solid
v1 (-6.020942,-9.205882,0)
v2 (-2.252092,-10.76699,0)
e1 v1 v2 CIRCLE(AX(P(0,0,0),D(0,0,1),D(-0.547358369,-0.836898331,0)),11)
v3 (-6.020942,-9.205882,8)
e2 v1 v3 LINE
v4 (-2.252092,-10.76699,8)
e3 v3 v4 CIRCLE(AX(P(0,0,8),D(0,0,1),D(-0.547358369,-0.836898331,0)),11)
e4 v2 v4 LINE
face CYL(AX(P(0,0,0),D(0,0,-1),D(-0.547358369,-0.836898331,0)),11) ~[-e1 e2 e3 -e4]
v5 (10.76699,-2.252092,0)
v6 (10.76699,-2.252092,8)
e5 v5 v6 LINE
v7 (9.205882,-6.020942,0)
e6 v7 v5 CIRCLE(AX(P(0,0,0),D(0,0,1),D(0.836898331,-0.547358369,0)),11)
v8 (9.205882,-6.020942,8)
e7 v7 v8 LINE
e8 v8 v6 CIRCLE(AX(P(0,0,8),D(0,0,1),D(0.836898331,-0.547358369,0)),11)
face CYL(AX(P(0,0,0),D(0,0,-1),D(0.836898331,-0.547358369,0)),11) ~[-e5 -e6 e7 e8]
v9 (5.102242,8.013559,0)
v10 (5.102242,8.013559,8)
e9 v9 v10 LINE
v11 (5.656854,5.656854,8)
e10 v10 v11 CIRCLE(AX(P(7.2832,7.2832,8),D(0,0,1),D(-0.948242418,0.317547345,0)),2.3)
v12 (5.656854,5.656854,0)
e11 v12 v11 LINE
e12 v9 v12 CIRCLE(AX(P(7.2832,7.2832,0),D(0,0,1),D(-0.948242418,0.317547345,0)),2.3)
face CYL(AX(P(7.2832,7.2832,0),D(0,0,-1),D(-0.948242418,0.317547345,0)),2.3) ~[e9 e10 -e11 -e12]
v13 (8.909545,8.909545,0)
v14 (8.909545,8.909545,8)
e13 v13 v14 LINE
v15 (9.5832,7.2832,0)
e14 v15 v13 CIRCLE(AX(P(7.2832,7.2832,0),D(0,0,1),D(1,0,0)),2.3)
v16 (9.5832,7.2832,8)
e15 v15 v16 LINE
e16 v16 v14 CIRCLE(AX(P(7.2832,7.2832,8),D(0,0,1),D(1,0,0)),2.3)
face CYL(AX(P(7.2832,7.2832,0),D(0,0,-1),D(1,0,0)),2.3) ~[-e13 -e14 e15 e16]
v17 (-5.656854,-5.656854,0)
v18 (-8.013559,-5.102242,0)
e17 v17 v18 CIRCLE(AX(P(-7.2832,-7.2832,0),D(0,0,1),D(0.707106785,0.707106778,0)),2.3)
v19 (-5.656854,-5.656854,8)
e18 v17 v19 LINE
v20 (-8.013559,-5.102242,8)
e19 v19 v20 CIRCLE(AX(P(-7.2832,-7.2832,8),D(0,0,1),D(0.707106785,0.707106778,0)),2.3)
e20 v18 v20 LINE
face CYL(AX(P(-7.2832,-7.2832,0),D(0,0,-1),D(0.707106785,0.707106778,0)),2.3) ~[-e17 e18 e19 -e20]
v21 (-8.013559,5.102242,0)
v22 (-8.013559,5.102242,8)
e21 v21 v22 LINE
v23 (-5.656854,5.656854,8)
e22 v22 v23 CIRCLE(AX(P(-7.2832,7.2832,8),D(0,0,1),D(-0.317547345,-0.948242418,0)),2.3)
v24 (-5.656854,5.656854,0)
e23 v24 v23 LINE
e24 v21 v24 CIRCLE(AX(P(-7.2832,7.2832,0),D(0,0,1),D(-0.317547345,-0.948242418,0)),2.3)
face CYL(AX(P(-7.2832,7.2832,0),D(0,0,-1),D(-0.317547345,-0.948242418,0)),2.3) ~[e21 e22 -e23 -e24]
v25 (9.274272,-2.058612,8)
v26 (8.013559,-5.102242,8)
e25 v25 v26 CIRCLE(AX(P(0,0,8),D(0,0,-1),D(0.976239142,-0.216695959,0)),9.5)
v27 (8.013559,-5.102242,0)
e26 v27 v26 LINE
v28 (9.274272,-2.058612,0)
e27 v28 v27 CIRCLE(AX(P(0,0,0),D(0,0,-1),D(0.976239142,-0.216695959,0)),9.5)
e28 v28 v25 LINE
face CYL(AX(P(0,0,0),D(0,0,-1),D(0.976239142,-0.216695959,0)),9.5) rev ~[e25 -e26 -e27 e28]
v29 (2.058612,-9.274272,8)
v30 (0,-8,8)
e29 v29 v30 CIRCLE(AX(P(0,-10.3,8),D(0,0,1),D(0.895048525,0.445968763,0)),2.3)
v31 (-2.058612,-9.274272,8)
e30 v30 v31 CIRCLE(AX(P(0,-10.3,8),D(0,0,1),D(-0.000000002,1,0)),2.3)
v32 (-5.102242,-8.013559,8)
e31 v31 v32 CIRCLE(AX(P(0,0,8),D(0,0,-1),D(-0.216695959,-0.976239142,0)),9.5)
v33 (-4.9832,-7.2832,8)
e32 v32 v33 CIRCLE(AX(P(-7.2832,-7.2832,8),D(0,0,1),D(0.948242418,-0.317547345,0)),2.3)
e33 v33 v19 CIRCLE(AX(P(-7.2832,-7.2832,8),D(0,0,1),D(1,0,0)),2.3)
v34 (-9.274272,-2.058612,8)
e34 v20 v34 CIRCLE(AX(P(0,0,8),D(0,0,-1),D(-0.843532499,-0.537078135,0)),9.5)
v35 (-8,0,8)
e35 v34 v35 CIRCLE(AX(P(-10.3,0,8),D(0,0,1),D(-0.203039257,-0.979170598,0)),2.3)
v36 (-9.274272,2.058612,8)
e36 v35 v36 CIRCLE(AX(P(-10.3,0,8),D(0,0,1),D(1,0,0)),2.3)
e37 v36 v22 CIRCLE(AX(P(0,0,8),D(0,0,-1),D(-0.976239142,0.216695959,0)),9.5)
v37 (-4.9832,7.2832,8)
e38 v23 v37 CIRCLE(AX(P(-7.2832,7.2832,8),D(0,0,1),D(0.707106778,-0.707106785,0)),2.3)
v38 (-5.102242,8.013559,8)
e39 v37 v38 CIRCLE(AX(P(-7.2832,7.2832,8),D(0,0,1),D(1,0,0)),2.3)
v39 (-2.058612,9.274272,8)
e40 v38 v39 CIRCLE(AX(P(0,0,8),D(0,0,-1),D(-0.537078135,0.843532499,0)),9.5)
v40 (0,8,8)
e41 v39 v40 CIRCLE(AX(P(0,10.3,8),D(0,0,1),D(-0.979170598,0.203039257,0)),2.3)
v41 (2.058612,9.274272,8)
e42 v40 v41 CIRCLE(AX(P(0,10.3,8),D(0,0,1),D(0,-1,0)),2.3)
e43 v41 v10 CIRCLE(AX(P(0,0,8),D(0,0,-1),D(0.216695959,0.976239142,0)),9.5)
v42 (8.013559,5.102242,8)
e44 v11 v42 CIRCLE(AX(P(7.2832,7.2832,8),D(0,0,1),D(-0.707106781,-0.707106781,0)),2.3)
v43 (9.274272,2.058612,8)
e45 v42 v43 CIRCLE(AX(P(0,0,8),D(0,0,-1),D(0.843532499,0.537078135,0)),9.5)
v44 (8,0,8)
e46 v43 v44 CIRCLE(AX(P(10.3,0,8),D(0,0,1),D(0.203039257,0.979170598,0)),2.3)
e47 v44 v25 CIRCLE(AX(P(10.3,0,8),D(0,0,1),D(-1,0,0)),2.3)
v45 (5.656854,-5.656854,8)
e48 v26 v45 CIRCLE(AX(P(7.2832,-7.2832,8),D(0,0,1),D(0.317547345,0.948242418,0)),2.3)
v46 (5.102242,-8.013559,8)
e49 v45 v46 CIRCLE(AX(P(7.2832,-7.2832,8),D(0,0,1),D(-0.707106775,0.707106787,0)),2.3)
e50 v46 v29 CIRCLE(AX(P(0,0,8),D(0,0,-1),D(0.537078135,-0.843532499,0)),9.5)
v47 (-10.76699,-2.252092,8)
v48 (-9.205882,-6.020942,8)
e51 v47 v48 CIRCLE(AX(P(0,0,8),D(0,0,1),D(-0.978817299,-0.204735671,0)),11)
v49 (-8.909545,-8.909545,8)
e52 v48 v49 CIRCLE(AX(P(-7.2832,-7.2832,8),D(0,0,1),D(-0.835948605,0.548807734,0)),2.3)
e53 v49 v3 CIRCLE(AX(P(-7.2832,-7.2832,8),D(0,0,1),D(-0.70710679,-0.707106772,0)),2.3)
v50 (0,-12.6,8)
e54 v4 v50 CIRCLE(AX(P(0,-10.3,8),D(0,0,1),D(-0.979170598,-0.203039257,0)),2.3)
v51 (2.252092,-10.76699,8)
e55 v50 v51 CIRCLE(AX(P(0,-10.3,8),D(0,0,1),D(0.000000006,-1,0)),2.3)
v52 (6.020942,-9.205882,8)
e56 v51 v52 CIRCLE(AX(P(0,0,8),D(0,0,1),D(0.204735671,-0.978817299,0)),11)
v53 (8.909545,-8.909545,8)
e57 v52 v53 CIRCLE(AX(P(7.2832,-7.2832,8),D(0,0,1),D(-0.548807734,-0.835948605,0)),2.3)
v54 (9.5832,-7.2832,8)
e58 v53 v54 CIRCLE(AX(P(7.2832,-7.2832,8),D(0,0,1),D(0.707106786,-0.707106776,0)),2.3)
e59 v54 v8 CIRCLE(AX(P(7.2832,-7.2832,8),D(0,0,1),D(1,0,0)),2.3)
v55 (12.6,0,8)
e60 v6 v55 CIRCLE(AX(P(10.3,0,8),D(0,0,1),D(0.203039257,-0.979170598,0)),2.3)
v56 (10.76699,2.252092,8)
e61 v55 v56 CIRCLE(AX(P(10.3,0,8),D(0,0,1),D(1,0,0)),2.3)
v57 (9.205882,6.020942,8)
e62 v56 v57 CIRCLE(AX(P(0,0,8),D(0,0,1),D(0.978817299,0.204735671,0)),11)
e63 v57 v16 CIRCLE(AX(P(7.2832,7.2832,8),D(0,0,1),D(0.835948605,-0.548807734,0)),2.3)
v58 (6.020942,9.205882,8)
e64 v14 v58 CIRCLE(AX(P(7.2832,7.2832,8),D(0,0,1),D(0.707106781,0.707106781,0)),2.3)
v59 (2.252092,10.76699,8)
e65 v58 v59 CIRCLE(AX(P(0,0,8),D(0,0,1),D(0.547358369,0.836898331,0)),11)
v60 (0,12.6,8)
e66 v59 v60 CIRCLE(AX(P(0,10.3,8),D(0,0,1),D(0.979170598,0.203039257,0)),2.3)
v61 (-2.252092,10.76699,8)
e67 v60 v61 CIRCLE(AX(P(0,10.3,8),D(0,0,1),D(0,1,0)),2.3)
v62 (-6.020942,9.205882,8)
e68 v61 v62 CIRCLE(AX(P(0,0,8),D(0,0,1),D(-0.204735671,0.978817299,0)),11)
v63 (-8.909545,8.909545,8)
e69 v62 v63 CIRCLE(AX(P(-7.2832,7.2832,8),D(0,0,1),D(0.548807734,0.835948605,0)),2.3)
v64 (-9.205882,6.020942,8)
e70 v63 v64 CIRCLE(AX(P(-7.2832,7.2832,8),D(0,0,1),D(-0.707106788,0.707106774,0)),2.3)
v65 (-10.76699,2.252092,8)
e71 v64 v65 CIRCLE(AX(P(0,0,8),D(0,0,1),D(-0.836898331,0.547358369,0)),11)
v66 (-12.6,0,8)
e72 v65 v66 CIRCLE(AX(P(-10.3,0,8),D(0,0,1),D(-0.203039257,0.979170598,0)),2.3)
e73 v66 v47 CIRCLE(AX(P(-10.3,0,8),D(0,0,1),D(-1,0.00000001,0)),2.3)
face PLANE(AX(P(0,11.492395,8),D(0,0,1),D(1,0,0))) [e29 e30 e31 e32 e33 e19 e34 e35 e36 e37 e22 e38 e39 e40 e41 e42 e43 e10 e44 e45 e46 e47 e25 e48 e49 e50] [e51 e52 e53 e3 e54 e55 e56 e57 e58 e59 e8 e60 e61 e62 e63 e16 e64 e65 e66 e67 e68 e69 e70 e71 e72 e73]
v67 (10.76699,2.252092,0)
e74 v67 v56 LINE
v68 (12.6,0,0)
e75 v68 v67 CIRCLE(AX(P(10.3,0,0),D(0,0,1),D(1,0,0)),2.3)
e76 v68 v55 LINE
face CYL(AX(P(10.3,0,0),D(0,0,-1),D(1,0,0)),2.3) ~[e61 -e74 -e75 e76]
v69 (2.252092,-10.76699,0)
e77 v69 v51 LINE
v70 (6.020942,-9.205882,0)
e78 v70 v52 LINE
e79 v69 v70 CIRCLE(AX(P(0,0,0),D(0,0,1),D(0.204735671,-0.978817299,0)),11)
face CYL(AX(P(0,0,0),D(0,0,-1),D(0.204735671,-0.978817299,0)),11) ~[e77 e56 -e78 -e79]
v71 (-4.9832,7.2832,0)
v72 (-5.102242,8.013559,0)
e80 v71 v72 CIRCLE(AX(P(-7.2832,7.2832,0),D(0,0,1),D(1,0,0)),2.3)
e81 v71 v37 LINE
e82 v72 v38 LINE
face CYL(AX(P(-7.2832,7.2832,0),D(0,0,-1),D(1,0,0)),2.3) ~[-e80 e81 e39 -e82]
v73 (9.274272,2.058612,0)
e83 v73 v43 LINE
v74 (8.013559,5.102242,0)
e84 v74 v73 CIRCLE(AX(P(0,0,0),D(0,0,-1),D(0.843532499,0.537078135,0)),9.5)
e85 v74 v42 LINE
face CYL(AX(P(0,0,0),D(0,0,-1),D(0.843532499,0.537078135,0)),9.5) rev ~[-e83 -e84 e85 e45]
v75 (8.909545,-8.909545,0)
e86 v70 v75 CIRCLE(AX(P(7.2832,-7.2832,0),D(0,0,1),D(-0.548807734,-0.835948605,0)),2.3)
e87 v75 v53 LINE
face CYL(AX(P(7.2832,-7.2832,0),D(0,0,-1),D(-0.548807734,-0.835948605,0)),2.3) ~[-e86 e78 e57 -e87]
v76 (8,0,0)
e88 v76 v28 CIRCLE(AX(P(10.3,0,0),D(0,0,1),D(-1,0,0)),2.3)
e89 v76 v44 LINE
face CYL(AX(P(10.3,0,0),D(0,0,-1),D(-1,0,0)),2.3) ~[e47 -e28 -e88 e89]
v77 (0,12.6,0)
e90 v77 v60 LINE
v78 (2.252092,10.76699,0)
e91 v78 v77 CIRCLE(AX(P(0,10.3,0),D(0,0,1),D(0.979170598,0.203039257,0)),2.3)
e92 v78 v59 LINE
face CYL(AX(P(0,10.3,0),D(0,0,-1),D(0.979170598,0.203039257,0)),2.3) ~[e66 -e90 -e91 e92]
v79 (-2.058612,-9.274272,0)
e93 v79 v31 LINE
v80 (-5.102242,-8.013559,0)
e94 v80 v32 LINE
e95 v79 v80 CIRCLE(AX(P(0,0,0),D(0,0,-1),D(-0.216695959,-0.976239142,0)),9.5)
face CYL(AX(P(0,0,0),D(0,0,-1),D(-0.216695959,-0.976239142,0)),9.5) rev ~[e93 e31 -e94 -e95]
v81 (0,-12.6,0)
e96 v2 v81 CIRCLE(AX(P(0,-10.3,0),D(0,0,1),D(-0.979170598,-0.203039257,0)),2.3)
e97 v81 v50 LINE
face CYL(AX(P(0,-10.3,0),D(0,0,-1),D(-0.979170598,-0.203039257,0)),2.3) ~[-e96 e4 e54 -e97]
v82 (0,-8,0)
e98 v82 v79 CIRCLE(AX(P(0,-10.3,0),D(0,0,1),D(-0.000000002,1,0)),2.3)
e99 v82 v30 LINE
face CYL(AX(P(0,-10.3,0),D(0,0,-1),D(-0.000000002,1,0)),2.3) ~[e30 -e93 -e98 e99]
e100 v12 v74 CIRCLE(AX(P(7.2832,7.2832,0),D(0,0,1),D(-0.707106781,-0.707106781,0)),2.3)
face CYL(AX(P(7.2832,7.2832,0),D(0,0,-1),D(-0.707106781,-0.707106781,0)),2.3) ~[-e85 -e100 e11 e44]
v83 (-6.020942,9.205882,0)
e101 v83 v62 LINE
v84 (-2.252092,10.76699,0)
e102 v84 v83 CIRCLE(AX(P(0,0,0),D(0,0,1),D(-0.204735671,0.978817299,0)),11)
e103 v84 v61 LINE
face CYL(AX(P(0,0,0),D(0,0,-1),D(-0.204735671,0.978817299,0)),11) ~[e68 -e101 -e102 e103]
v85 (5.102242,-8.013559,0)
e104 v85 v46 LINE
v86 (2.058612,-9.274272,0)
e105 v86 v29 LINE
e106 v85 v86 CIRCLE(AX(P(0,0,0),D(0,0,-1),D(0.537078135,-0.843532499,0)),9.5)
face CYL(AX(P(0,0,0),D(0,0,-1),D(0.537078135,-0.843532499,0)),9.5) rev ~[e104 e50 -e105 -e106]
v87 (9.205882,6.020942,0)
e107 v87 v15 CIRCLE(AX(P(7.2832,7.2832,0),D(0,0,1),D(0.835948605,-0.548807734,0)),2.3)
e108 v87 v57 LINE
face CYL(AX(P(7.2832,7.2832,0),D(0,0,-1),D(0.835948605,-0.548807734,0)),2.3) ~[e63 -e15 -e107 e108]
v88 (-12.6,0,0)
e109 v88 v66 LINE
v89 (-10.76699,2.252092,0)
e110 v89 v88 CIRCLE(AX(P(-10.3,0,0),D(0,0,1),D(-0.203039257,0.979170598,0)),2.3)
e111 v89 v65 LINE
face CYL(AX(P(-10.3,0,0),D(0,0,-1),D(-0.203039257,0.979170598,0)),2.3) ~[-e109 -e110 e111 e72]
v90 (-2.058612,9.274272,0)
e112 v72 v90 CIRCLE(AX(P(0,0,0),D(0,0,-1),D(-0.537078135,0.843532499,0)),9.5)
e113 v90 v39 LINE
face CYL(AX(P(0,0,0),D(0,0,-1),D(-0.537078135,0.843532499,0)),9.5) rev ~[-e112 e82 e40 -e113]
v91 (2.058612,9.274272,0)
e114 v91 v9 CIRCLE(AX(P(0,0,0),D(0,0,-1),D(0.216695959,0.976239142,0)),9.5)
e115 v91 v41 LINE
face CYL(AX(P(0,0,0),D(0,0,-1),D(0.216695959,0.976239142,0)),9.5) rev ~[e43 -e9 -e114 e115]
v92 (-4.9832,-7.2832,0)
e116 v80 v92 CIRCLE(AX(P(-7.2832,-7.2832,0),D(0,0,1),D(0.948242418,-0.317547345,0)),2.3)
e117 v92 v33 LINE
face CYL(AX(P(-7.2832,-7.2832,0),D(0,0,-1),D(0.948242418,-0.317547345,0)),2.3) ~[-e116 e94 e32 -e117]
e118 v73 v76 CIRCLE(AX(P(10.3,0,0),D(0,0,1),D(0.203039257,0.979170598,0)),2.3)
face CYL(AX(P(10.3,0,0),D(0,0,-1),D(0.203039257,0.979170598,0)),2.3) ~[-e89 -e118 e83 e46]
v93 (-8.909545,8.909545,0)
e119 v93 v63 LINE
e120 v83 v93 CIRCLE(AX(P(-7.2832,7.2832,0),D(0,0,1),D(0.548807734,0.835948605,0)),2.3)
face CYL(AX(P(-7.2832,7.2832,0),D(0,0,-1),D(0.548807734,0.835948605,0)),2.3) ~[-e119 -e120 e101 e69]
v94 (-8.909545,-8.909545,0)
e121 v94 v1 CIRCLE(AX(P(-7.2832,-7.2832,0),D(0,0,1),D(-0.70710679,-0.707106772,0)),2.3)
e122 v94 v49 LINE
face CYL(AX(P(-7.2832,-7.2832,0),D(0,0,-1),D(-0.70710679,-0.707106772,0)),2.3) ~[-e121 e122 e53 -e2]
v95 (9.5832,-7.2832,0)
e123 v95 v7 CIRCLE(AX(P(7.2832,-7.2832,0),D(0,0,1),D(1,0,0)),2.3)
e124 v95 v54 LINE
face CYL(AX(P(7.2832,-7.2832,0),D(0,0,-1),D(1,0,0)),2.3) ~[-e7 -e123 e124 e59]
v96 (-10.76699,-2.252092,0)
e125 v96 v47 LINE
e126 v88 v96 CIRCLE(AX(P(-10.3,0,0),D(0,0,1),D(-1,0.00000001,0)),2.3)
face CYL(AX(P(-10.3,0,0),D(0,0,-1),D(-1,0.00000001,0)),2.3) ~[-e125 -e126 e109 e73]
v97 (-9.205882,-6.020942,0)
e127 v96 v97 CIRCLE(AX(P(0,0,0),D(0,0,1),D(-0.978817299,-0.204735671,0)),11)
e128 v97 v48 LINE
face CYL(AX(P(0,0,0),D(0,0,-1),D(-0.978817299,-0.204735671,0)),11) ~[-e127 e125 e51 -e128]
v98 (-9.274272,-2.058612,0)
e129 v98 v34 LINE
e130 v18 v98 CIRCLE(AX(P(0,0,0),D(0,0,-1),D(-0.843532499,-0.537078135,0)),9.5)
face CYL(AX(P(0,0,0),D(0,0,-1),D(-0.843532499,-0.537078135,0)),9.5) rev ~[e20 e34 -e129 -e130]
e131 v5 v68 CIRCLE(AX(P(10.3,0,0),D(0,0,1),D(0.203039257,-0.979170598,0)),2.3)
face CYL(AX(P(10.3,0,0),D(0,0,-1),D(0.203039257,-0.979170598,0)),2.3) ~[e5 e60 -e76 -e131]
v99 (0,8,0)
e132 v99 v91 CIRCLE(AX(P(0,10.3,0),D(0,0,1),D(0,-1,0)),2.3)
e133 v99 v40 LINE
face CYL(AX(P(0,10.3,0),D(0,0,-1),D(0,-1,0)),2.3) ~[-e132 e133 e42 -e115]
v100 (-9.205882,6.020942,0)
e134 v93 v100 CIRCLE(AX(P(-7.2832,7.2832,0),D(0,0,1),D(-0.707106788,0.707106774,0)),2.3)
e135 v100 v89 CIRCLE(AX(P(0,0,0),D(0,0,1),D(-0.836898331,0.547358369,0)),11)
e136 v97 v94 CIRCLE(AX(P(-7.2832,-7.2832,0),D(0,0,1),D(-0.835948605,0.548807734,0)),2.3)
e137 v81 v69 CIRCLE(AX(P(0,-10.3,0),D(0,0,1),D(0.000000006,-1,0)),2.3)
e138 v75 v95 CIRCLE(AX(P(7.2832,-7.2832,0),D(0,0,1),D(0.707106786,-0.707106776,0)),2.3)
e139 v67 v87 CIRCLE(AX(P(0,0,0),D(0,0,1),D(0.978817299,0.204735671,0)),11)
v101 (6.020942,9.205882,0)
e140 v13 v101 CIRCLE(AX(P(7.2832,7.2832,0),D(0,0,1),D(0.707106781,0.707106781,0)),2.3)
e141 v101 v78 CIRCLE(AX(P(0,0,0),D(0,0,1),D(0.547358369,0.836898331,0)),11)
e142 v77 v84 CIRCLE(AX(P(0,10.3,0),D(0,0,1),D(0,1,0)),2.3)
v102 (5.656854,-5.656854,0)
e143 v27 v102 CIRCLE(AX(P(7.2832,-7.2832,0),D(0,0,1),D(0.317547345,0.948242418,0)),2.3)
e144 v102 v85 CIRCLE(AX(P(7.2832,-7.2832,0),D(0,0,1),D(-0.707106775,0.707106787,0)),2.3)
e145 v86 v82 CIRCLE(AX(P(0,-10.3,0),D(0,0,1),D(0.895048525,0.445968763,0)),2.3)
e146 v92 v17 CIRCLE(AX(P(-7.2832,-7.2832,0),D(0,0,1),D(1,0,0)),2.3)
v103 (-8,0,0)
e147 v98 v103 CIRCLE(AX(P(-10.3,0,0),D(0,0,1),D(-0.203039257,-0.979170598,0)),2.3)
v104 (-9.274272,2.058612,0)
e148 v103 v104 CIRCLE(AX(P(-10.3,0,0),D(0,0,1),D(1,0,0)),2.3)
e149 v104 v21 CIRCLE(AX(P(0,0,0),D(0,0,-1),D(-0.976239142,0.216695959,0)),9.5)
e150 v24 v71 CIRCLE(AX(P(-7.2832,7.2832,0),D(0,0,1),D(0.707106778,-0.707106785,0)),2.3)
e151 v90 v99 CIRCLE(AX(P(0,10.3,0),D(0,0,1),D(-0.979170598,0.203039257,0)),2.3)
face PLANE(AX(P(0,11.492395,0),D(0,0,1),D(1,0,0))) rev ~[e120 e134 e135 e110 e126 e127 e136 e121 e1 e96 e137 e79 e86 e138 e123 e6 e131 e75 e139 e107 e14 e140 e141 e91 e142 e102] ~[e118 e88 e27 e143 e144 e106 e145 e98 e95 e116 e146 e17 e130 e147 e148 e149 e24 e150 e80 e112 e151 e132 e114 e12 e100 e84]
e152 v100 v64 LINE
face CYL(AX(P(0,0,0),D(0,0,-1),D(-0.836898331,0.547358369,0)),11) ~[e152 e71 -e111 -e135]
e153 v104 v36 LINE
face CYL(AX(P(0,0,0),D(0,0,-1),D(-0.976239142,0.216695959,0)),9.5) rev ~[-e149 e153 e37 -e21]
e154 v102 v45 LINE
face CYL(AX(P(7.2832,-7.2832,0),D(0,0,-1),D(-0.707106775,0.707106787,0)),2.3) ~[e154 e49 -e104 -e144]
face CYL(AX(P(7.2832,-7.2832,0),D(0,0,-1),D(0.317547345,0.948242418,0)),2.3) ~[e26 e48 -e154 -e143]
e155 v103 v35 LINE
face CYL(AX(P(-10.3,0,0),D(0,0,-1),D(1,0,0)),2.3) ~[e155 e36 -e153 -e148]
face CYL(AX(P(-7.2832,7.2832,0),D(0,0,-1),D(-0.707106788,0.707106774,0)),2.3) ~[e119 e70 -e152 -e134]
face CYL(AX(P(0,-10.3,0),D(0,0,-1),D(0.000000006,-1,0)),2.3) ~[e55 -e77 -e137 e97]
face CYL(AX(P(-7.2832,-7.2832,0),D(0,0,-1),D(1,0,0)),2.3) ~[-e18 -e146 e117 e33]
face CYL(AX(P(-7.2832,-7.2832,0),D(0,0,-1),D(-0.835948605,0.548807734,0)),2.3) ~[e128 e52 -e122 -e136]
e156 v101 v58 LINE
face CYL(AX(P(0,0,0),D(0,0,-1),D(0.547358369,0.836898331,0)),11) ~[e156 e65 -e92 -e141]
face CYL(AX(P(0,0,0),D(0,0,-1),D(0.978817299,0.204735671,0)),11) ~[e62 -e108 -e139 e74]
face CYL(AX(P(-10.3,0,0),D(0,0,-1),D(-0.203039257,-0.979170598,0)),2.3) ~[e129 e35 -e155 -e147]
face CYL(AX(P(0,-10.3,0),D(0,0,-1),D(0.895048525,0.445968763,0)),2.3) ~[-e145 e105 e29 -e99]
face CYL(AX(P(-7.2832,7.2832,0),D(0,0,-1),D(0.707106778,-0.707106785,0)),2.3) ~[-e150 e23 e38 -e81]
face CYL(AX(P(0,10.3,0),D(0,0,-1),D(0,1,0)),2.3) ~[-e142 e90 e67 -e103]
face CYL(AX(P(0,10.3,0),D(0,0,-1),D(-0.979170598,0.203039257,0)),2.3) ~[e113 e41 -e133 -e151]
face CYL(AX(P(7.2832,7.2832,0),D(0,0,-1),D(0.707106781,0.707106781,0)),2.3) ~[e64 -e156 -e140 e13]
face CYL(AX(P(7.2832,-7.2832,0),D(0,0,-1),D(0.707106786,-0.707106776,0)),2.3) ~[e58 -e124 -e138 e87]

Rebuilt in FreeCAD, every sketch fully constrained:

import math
import FreeCAD as App
import Part
import Sketcher

V = App.Vector

doc = App.newDocument("Part")
body = doc.addObject("PartDesign::Body", "Body")

sketch1 = body.newObject("Sketcher::SketchObject", "Sketch")
sketch1.AttachmentSupport = (doc.getObject("XY_Plane"), [""])
sketch1.MapMode = "FlatFace"
sketch1.addGeometry([
    Part.ArcOfCircle(Part.Circle(V(0, 10.3, 0), V(0, 0, 1), 2.3), math.radians(12), math.radians(90)),
    Part.ArcOfCircle(Part.Circle(V(0, 10.3, 0), V(0, 0, 1), 2.3), math.radians(90), math.radians(168)),
    Part.ArcOfCircle(Part.Circle(V(0, 0, 0), V(0, 0, 1), 11), math.radians(102), math.radians(123)),
    Part.ArcOfCircle(Part.Circle(V(-7.3, 7.3, 0), V(0, 0, 1), 2.3), math.radians(57), math.radians(135)),
    Part.ArcOfCircle(Part.Circle(V(-7.3, 7.3, 0), V(0, 0, 1), 2.3), math.radians(135), math.radians(213)),
    Part.ArcOfCircle(Part.Circle(V(0, 0, 0), V(0, 0, 1), 11), math.radians(147), math.radians(168)),
    Part.ArcOfCircle(Part.Circle(V(-10.3, 0, 0), V(0, 0, 1), 2.3), math.radians(102), math.radians(180)),
    Part.ArcOfCircle(Part.Circle(V(-10.3, 0, 0), V(0, 0, 1), 2.3), math.radians(180), math.radians(258)),
    Part.ArcOfCircle(Part.Circle(V(0, 0, 0), V(0, 0, 1), 11), math.radians(-168), math.radians(-147)),
    Part.ArcOfCircle(Part.Circle(V(-7.3, -7.3, 0), V(0, 0, 1), 2.3), math.radians(147), math.radians(225)),
    Part.ArcOfCircle(Part.Circle(V(-7.3, -7.3, 0), V(0, 0, 1), 2.3), math.radians(-135), math.radians(-57)),
    Part.ArcOfCircle(Part.Circle(V(0, 0, 0), V(0, 0, 1), 11), math.radians(-123), math.radians(-102)),
    Part.ArcOfCircle(Part.Circle(V(0, -10.3, 0), V(0, 0, 1), 2.3), math.radians(-168), math.radians(-90)),
    Part.ArcOfCircle(Part.Circle(V(0, -10.3, 0), V(0, 0, 1), 2.3), math.radians(-90), math.radians(-12)),
    Part.ArcOfCircle(Part.Circle(V(0, 0, 0), V(0, 0, 1), 11), math.radians(-78), math.radians(-57)),
    Part.ArcOfCircle(Part.Circle(V(7.3, -7.3, 0), V(0, 0, 1), 2.3), math.radians(-123), math.radians(-45)),
    Part.ArcOfCircle(Part.Circle(V(7.3, -7.3, 0), V(0, 0, 1), 2.3), math.radians(-45), math.radians(0)),
    Part.ArcOfCircle(Part.Circle(V(7.3, -7.3, 0), V(0, 0, 1), 2.3), math.radians(0), math.radians(33)),
    Part.ArcOfCircle(Part.Circle(V(0, 0, 0), V(0, 0, 1), 11), math.radians(-33), math.radians(-12)),
    Part.ArcOfCircle(Part.Circle(V(10.3, 0, 0), V(0, 0, 1), 2.3), math.radians(-78), math.radians(0)),
    Part.ArcOfCircle(Part.Circle(V(10.3, 0, 0), V(0, 0, 1), 2.3), math.radians(0), math.radians(78)),
    Part.ArcOfCircle(Part.Circle(V(0, 0, 0), V(0, 0, 1), 11), math.radians(12), math.radians(33)),
    Part.ArcOfCircle(Part.Circle(V(7.3, 7.3, 0), V(0, 0, 1), 2.3), math.radians(-33), math.radians(0)),
    Part.ArcOfCircle(Part.Circle(V(7.3, 7.3, 0), V(0, 0, 1), 2.3), math.radians(0), math.radians(45)),
    Part.ArcOfCircle(Part.Circle(V(7.3, 7.3, 0), V(0, 0, 1), 2.3), math.radians(45), math.radians(123)),
    Part.ArcOfCircle(Part.Circle(V(0, 0, 0), V(0, 0, 1), 11), math.radians(57), math.radians(78)),
    Part.ArcOfCircle(Part.Circle(V(7.3, 7.3, 0), V(0, 0, 1), 2.3), math.radians(161), math.radians(225)),
    Part.ArcOfCircle(Part.Circle(V(7.3, 7.3, 0), V(0, 0, 1), 2.3), math.radians(-135), math.radians(-71)),
    Part.ArcOfCircle(Part.Circle(V(0, 0, 0), V(0, 0, 1), 9.5), math.radians(12.52), math.radians(32.48)),
    Part.ArcOfCircle(Part.Circle(V(10.3, 0, 0), V(0, 0, 1), 2.3), math.radians(116), math.radians(180)),
    Part.ArcOfCircle(Part.Circle(V(10.3, 0, 0), V(0, 0, 1), 2.3), math.radians(180), math.radians(244)),
    Part.ArcOfCircle(Part.Circle(V(0, 0, 0), V(0, 0, 1), 9.5), math.radians(-32.48), math.radians(-12.52)),
    Part.ArcOfCircle(Part.Circle(V(7.3, -7.3, 0), V(0, 0, 1), 2.3), math.radians(71), math.radians(135)),
    Part.ArcOfCircle(Part.Circle(V(7.3, -7.3, 0), V(0, 0, 1), 2.3), math.radians(135), math.radians(199)),
    Part.ArcOfCircle(Part.Circle(V(0, 0, 0), V(0, 0, 1), 9.5), math.radians(-77.48), math.radians(-57.52)),
    Part.ArcOfCircle(Part.Circle(V(0, -10.3, 0), V(0, 0, 1), 2.3), math.radians(26), math.radians(90)),
    Part.ArcOfCircle(Part.Circle(V(0, -10.3, 0), V(0, 0, 1), 2.3), math.radians(90), math.radians(154)),
    Part.ArcOfCircle(Part.Circle(V(0, 0, 0), V(0, 0, 1), 9.5), math.radians(-122.48), math.radians(-102.52)),
    Part.ArcOfCircle(Part.Circle(V(-7.3, -7.3, 0), V(0, 0, 1), 2.3), math.radians(-18.51), math.radians(0)),
    Part.ArcOfCircle(Part.Circle(V(-7.3, -7.3, 0), V(0, 0, 1), 2.3), math.radians(0), math.radians(45)),
    Part.ArcOfCircle(Part.Circle(V(-7.3, -7.3, 0), V(0, 0, 1), 2.3), math.radians(45), math.radians(109)),
    Part.ArcOfCircle(Part.Circle(V(0, 0, 0), V(0, 0, 1), 9.5), math.radians(-167.48), math.radians(-147.52)),
    Part.ArcOfCircle(Part.Circle(V(-10.3, 0, 0), V(0, 0, 1), 2.3), math.radians(-64), math.radians(0)),
    Part.ArcOfCircle(Part.Circle(V(-10.3, 0, 0), V(0, 0, 1), 2.3), math.radians(0), math.radians(64)),
    Part.ArcOfCircle(Part.Circle(V(0, 0, 0), V(0, 0, 1), 9.5), math.radians(147.52), math.radians(167.48)),
    Part.ArcOfCircle(Part.Circle(V(-7.3, 7.3, 0), V(0, 0, 1), 2.3), math.radians(-109), math.radians(-45)),
    Part.ArcOfCircle(Part.Circle(V(-7.3, 7.3, 0), V(0, 0, 1), 2.3), math.radians(-45), math.radians(0)),
    Part.ArcOfCircle(Part.Circle(V(-7.3, 7.3, 0), V(0, 0, 1), 2.3), math.radians(0), math.radians(18.51)),
    Part.ArcOfCircle(Part.Circle(V(0, 0, 0), V(0, 0, 1), 9.5), math.radians(102.52), math.radians(122.48)),
    Part.ArcOfCircle(Part.Circle(V(0, 10.3, 0), V(0, 0, 1), 2.3), math.radians(-154), math.radians(-90)),
    Part.ArcOfCircle(Part.Circle(V(0, 10.3, 0), V(0, 0, 1), 2.3), math.radians(-90), math.radians(-26)),
    Part.ArcOfCircle(Part.Circle(V(0, 0, 0), V(0, 0, 1), 9.5), math.radians(57.52), math.radians(77.48)),
], False)
sketch1.addConstraint([
    Sketcher.Constraint("Tangent", 0, 2, 1, 1),
    Sketcher.Constraint("Coincident", 1, 2, 2, 1),
    Sketcher.Constraint("Coincident", 2, 2, 3, 1),
    Sketcher.Constraint("Tangent", 3, 2, 4, 1),
    Sketcher.Constraint("Coincident", 4, 2, 5, 1),
    Sketcher.Constraint("Coincident", 5, 2, 6, 1),
    Sketcher.Constraint("Tangent", 6, 2, 7, 1),
    Sketcher.Constraint("Coincident", 7, 2, 8, 1),
    Sketcher.Constraint("Coincident", 8, 2, 9, 1),
    Sketcher.Constraint("Tangent", 9, 2, 10, 1),
    Sketcher.Constraint("Coincident", 10, 2, 11, 1),
    Sketcher.Constraint("Coincident", 11, 2, 12, 1),
    Sketcher.Constraint("Tangent", 12, 2, 13, 1),
    Sketcher.Constraint("Coincident", 13, 2, 14, 1),
    Sketcher.Constraint("Coincident", 14, 2, 15, 1),
    Sketcher.Constraint("Tangent", 15, 2, 16, 1),
    Sketcher.Constraint("Tangent", 16, 2, 17, 1),
    Sketcher.Constraint("Coincident", 17, 2, 18, 1),
    Sketcher.Constraint("Coincident", 18, 2, 19, 1),
    Sketcher.Constraint("Tangent", 19, 2, 20, 1),
    Sketcher.Constraint("Coincident", 20, 2, 21, 1),
    Sketcher.Constraint("Coincident", 21, 2, 22, 1),
    Sketcher.Constraint("Tangent", 22, 2, 23, 1),
    Sketcher.Constraint("Tangent", 23, 2, 24, 1),
    Sketcher.Constraint("Coincident", 24, 2, 25, 1),
    Sketcher.Constraint("Coincident", 25, 2, 0, 1),
    Sketcher.Constraint("Tangent", 26, 2, 27, 1),
    Sketcher.Constraint("Coincident", 27, 2, 28, 2),
    Sketcher.Constraint("Coincident", 28, 1, 29, 1),
    Sketcher.Constraint("Tangent", 29, 2, 30, 1),
    Sketcher.Constraint("Coincident", 30, 2, 31, 2),
    Sketcher.Constraint("Coincident", 31, 1, 32, 1),
    Sketcher.Constraint("Tangent", 32, 2, 33, 1),
    Sketcher.Constraint("Coincident", 33, 2, 34, 2),
    Sketcher.Constraint("Coincident", 34, 1, 35, 1),
    Sketcher.Constraint("Tangent", 35, 2, 36, 1),
    Sketcher.Constraint("Coincident", 36, 2, 37, 2),
    Sketcher.Constraint("Coincident", 37, 1, 38, 1),
    Sketcher.Constraint("Tangent", 38, 2, 39, 1),
    Sketcher.Constraint("Tangent", 39, 2, 40, 1),
    Sketcher.Constraint("Coincident", 40, 2, 41, 2),
    Sketcher.Constraint("Coincident", 41, 1, 42, 1),
    Sketcher.Constraint("Tangent", 42, 2, 43, 1),
    Sketcher.Constraint("Coincident", 43, 2, 44, 2),
    Sketcher.Constraint("Coincident", 44, 1, 45, 1),
    Sketcher.Constraint("Tangent", 45, 2, 46, 1),
    Sketcher.Constraint("Tangent", 46, 2, 47, 1),
    Sketcher.Constraint("Coincident", 47, 2, 48, 2),
    Sketcher.Constraint("Coincident", 48, 1, 49, 1),
    Sketcher.Constraint("Tangent", 49, 2, 50, 1),
    Sketcher.Constraint("Coincident", 50, 2, 51, 2),
    Sketcher.Constraint("Coincident", 51, 1, 26, 1),
    Sketcher.Constraint("Coincident", 2, 3, -1, 1),
    Sketcher.Constraint("Coincident", 5, 3, -1, 1),
    Sketcher.Constraint("Coincident", 8, 3, -1, 1),
    Sketcher.Constraint("Coincident", 11, 3, -1, 1),
    Sketcher.Constraint("Coincident", 14, 3, -1, 1),
    Sketcher.Constraint("Coincident", 18, 3, -1, 1),
    Sketcher.Constraint("Coincident", 21, 3, -1, 1),
    Sketcher.Constraint("Coincident", 25, 3, -1, 1),
    Sketcher.Constraint("Coincident", 28, 3, -1, 1),
    Sketcher.Constraint("Coincident", 31, 3, -1, 1),
    Sketcher.Constraint("Coincident", 34, 3, -1, 1),
    Sketcher.Constraint("Coincident", 37, 3, -1, 1),
    Sketcher.Constraint("Coincident", 41, 3, -1, 1),
    Sketcher.Constraint("Coincident", 44, 3, -1, 1),
    Sketcher.Constraint("Coincident", 48, 3, -1, 1),
    Sketcher.Constraint("Coincident", 51, 3, -1, 1),
    Sketcher.Constraint("Coincident", 17, 3, 15, 3),
    Sketcher.Constraint("Coincident", 24, 3, 22, 3),
    Sketcher.Constraint("Coincident", 26, 3, 22, 3),
    Sketcher.Constraint("Coincident", 29, 3, 19, 3),
    Sketcher.Constraint("Coincident", 32, 3, 15, 3),
    Sketcher.Constraint("Coincident", 35, 3, 12, 3),
    Sketcher.Constraint("Coincident", 38, 3, 9, 3),
    Sketcher.Constraint("Coincident", 40, 3, 9, 3),
    Sketcher.Constraint("Coincident", 42, 3, 6, 3),
    Sketcher.Constraint("Coincident", 45, 3, 3, 3),
    Sketcher.Constraint("Coincident", 47, 3, 3, 3),
    Sketcher.Constraint("Coincident", 49, 3, 0, 3),
    Sketcher.Constraint("Equal", 0, 1),
    Sketcher.Constraint("Equal", 1, 3),
    Sketcher.Constraint("Equal", 3, 4),
    Sketcher.Constraint("Equal", 2, 5),
    Sketcher.Constraint("Equal", 4, 6),
    Sketcher.Constraint("Equal", 6, 7),
    Sketcher.Constraint("Equal", 5, 8),
    Sketcher.Constraint("Equal", 7, 9),
    Sketcher.Constraint("Equal", 9, 10),
    Sketcher.Constraint("Equal", 8, 11),
    Sketcher.Constraint("Equal", 10, 12),
    Sketcher.Constraint("Equal", 12, 13),
    Sketcher.Constraint("Equal", 11, 14),
    Sketcher.Constraint("Equal", 13, 15),
    Sketcher.Constraint("Equal", 14, 18),
    Sketcher.Constraint("Equal", 17, 19),
    Sketcher.Constraint("Equal", 19, 20),
    Sketcher.Constraint("Equal", 18, 21),
    Sketcher.Constraint("Equal", 20, 22),
    Sketcher.Constraint("Equal", 21, 25),
    Sketcher.Constraint("Equal", 24, 26),
    Sketcher.Constraint("Equal", 26, 27),
    Sketcher.Constraint("Equal", 27, 29),
    Sketcher.Constraint("Equal", 29, 30),
    Sketcher.Constraint("Equal", 28, 31),
    Sketcher.Constraint("Equal", 30, 32),
    Sketcher.Constraint("Equal", 32, 33),
    Sketcher.Constraint("Equal", 31, 34),
    Sketcher.Constraint("Equal", 33, 35),
    Sketcher.Constraint("Equal", 35, 36),
    Sketcher.Constraint("Equal", 34, 37),
    Sketcher.Constraint("Equal", 36, 38),
    Sketcher.Constraint("Equal", 37, 41),
    Sketcher.Constraint("Equal", 40, 42),
    Sketcher.Constraint("Equal", 42, 43),
    Sketcher.Constraint("Equal", 41, 44),
    Sketcher.Constraint("Equal", 43, 45),
    Sketcher.Constraint("Equal", 44, 48),
    Sketcher.Constraint("Equal", 47, 49),
    Sketcher.Constraint("Equal", 49, 50),
    Sketcher.Constraint("Equal", 48, 51),
    Sketcher.Constraint("Symmetric", 0, 3, 12, 3, -1, 1),
    Sketcher.Constraint("Symmetric", 3, 3, 15, 3, -1, 1),
    Sketcher.Constraint("Symmetric", 6, 3, 19, 3, -1, 1),
    Sketcher.Constraint("Symmetric", 9, 3, 22, 3, -1, 1),
    Sketcher.Constraint("Symmetric", 9, 3, 15, 3, -2),
    Sketcher.Constraint("PointOnObject", 0, 3, -2),
    Sketcher.Constraint("PointOnObject", 6, 3, -1),
    Sketcher.Constraint("PointOnObject", 0, 2, -2),
    Sketcher.Constraint("PointOnObject", 6, 2, -1),
    Sketcher.Constraint("PointOnObject", 12, 2, -2),
    Sketcher.Constraint("PointOnObject", 19, 2, -1),
    Sketcher.Constraint("PointOnObject", 29, 2, -1),
    Sketcher.Constraint("PointOnObject", 35, 2, -2),
    Sketcher.Constraint("PointOnObject", 42, 2, -1),
    Sketcher.Constraint("PointOnObject", 49, 2, -2),
    Sketcher.Constraint("Horizontal", 9, 2, 15, 2),
    Sketcher.Constraint("Horizontal", 40, 3, 16, 2),
    Sketcher.Constraint("Horizontal", 47, 3, 22, 2),
    Sketcher.Constraint("Horizontal", 3, 2, 23, 2),
    Sketcher.Constraint("Horizontal", 16, 2, 38, 2),
    Sketcher.Constraint("Horizontal", 32, 2, 39, 2),
    Sketcher.Constraint("Horizontal", 26, 2, 45, 2),
    Sketcher.Constraint("Horizontal", 22, 2, 46, 2),
    Sketcher.Constraint("Vertical", 3, 2, 9, 2),
    Sketcher.Constraint("Vertical", 26, 2, 32, 2),
    Sketcher.Constraint("Radius", 2, 11.0),
    Sketcher.Constraint("Radius", 0, 2.3),
    Sketcher.Constraint("Radius", 28, 9.5),
    Sketcher.Constraint("DistanceX", -1, 1, 29, 2, 8.0),
    Sketcher.Constraint("DistanceY", 35, 2, -1, 1, 8.0),
    Sketcher.Constraint("DistanceX", 3, 3, -1, 1, 7.2832),
    Sketcher.Constraint("DistanceY", -1, 1, 3, 3, 7.2832),
    Sketcher.Constraint("DistanceX", 3, 2, -1, 1, 8.909545),
    Sketcher.Constraint("DistanceX", -1, 1, 26, 2, 5.656854),
])
pad1 = body.newObject("PartDesign::Pad", "Pad")
pad1.Profile = sketch1
pad1.Length = 8

doc.recompute()
